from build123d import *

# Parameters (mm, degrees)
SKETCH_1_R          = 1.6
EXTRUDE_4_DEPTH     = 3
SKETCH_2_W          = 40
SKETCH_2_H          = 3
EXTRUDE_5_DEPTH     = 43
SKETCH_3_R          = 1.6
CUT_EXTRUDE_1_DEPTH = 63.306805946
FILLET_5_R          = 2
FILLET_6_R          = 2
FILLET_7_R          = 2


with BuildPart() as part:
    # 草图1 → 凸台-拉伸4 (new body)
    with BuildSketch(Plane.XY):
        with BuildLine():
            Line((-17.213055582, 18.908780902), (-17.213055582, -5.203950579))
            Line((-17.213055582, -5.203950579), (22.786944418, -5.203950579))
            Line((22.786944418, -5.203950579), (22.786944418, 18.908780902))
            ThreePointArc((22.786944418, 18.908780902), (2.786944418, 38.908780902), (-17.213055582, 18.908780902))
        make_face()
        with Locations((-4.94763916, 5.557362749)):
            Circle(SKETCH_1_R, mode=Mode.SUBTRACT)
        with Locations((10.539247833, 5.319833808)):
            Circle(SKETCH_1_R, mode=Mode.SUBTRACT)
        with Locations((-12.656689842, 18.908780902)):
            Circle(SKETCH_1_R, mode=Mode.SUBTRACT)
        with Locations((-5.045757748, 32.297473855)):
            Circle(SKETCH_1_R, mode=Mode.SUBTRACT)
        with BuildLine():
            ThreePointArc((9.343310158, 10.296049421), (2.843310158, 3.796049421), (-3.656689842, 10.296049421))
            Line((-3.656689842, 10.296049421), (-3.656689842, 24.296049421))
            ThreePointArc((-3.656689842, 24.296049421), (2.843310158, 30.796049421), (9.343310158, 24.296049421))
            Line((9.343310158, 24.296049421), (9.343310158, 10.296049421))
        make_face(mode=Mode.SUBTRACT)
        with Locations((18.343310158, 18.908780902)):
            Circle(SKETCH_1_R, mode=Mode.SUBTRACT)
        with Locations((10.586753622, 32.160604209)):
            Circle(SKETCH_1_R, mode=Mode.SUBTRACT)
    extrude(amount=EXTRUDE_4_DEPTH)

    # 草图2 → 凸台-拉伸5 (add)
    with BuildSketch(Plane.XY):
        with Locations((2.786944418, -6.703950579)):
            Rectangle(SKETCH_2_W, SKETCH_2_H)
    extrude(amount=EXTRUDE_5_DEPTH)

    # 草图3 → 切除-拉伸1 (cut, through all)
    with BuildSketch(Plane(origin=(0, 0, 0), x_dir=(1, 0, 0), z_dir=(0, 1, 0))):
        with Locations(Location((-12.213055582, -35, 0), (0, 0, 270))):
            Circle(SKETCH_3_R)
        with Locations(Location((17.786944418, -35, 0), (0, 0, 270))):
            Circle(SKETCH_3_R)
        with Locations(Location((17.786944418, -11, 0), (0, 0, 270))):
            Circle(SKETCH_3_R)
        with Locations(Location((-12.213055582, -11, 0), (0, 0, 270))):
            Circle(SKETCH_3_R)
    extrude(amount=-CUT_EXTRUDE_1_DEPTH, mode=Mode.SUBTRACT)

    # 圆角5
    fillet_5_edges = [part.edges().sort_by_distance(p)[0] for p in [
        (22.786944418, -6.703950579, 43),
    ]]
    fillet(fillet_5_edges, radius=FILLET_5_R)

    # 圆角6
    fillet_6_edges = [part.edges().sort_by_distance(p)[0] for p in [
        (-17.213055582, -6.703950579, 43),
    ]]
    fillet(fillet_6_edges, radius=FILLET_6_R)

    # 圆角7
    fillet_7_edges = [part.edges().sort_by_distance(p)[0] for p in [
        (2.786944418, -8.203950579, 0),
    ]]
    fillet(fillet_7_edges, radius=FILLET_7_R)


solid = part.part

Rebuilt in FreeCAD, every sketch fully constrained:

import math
import FreeCAD as App
import Part
import Sketcher
from FreeCAD import Vector
Q = App.Units.Quantity


def edges_at(feature, points):
    """Names of the edges that pass closest to the given points."""
    edges = feature.Shape.Edges
    near = lambda p: min(range(len(edges)), key=lambda i: edges[i].distToShape(Part.Vertex(*p))[0])
    return sorted({f"Edge{near(p) + 1}" for p in points})


def add_polygon(sketch, points):
    """Adds a closed chain of lines whose ends are joined by coincident constraints."""
    first, n = sketch.GeometryCount, len(points)
    for a, b in zip(points, points[1:] + points[:1]):
        sketch.addGeometry(Part.LineSegment(App.Vector(*a, 0), App.Vector(*b, 0)), False)
    for i in range(n):
        sketch.addConstraint(Sketcher.Constraint("Coincident", first + i, 2, first + (i + 1) % n, 1))

doc = App.newDocument("Part")
body = doc.addObject("PartDesign::Body", "Body")

# Sketch on XY plane
sketch1 = body.newObject("Sketcher::SketchObject", "Sketch")
sketch1.AttachmentSupport = (doc.getObject("XY_Plane"), [""])
sketch1.MapMode = "FlatFace"
sketch1.addGeometry([
    Part.LineSegment(Vector(-17.213056, 18.908781, 0), Vector(-17.213056, -5.203951, 0)),  # 0
    Part.LineSegment(Vector(-17.213056, -5.203951, 0), Vector(22.786944, -5.203951, 0)),  # 1
    Part.LineSegment(Vector(22.786944, -5.203951, 0), Vector(22.786944, 18.908781, 0)),  # 2
    Part.ArcOfCircle(Part.Circle(Vector(2.786944, 18.908781, 0), Vector(0, 0, 1), 20), math.radians(0), math.radians(180)),  # 3
    Part.Circle(Vector(-4.947639, 5.557363, 0), Vector(0, 0, 1), 1.6),  # 4
    Part.Circle(Vector(10.539248, 5.319834, 0), Vector(0, 0, 1), 1.6),  # 5
    Part.LineSegment(Vector(9.34331, 24.296049, 0), Vector(9.34331, 10.296049, 0)),  # 6
    Part.ArcOfCircle(Part.Circle(Vector(2.84331, 10.296049, 0), Vector(0, 0, 1), 6.5), math.radians(180), math.radians(360)),  # 7
    Part.LineSegment(Vector(-3.65669, 10.296049, 0), Vector(-3.65669, 24.296049, 0)),  # 8
    Part.ArcOfCircle(Part.Circle(Vector(2.84331, 24.296049, 0), Vector(0, 0, 1), 6.5), math.radians(0), math.radians(180)),  # 9
    Part.Circle(Vector(-12.65669, 18.908781, 0), Vector(0, 0, 1), 1.6),  # 10
    Part.Circle(Vector(-5.045758, 32.297474, 0), Vector(0, 0, 1), 1.6),  # 11
    Part.Circle(Vector(18.34331, 18.908781, 0), Vector(0, 0, 1), 1.6),  # 12
    Part.Circle(Vector(10.586754, 32.160604, 0), Vector(0, 0, 1), 1.6),  # 13
], False)
sketch1.addConstraint([
    Sketcher.Constraint("Coincident", 0, 2, 1, 1),
    Sketcher.Constraint("Coincident", 1, 2, 2, 1),
    Sketcher.Constraint("Tangent", 2, 2, 3, 1),
    Sketcher.Constraint("Tangent", 3, 2, 0, 1),
    Sketcher.Constraint("Tangent", 6, 2, 7, 2),
    Sketcher.Constraint("Tangent", 7, 1, 8, 1),
    Sketcher.Constraint("Tangent", 8, 2, 9, 2),
    Sketcher.Constraint("Tangent", 9, 1, 6, 1),
    Sketcher.Constraint("Vertical", 0),
    Sketcher.Constraint("Horizontal", 1),
    Sketcher.Constraint("Vertical", 2),
    Sketcher.Constraint("Vertical", 6),
    Sketcher.Constraint("Vertical", 8),
    Sketcher.Constraint("Equal", 4, 5),
    Sketcher.Constraint("Equal", 5, 10),
    Sketcher.Constraint("Equal", 10, 11),
    Sketcher.Constraint("Equal", 11, 12),
    Sketcher.Constraint("Equal", 12, 13),
    Sketcher.Constraint("Horizontal", 3, 3, 10, 3),
    Sketcher.Constraint("Horizontal", 10, 3, 12, 3),
    Sketcher.Constraint("Radius", 3, Q("20 mm")),
    Sketcher.Constraint("Diameter", 4, Q("3.2 mm")),
    Sketcher.Constraint("Radius", 7, Q("6.5 mm")),
    Sketcher.Constraint("DistanceY", 6, 2, 6, 1, Q("14 mm")),
    Sketcher.Constraint("DistanceX", 6, 2, 12, 3, Q("9 mm")),
    Sketcher.Constraint("DistanceX", 10, 3, 7, 1, Q("9 mm")),
    Sketcher.Constraint("DistanceY", 0, 2, 7, 3, Q("15.5 mm")),
    Sketcher.Constraint("DistanceY", 0, 2, 0, 1, Q("24.112731 mm")),
    Sketcher.Constraint("DistanceY", -1, 1, 3, 3, Q("18.908781 mm")),
    Sketcher.Constraint("DistanceX", 4, 3, -1, 1, Q("4.947639 mm")),
    Sketcher.Constraint("DistanceX", -1, 1, 7, 3, Q("2.84331 mm")),
    Sketcher.Constraint("DistanceY", 4, 3, 3, 3, Q("13.351418 mm")),
    Sketcher.Constraint("DistanceY", 5, 3, 4, 3, Q("0.237529 mm")),
    Sketcher.Constraint("DistanceX", 11, 3, 4, 3, Q("0.098119 mm")),
    Sketcher.Constraint("DistanceY", 4, 3, 11, 3, Q("26.740111 mm")),
    Sketcher.Constraint("DistanceX", 3, 3, 13, 3, Q("7.799809 mm")),
    Sketcher.Constraint("DistanceX", 11, 3, 13, 3, Q("15.632511 mm")),
    Sketcher.Constraint("DistanceY", 13, 3, 11, 3, Q("0.13687 mm")),
    Sketcher.Constraint("DistanceX", -1, 1, 5, 3, Q("10.539248 mm")),
])
pad1 = body.newObject("PartDesign::Pad", "Pad")
pad1.Profile = sketch1
pad1.Length = 3

# Sketch on XY plane
sketch2 = body.newObject("Sketcher::SketchObject", "Sketch001")
sketch2.AttachmentSupport = (doc.getObject("XY_Plane"), [""])
sketch2.MapMode = "FlatFace"
add_polygon(sketch2, [(-17.213056, -5.203951), (-17.213056, -8.203951), (22.786944, -8.203951), (22.786944, -5.203951)])  # lines 0-3
sketch2.addConstraint([
    Sketcher.Constraint("Vertical", 0),
    Sketcher.Constraint("Horizontal", 1),
    Sketcher.Constraint("Vertical", 2),
    Sketcher.Constraint("Horizontal", 3),
    Sketcher.Constraint("DistanceX", 1, 1, 1, 2, Q("40 mm")),
    Sketcher.Constraint("DistanceY", 0, 2, 0, 1, Q("3 mm")),
    Sketcher.Constraint("DistanceY", 0, 2, -1, 1, Q("8.203951 mm")),
    Sketcher.Constraint("DistanceX", 0, 2, -1, 1, Q("17.213056 mm")),
])
pad2 = body.newObject("PartDesign::Pad", "Pad001")
pad2.Profile = sketch2
pad2.Length = 43

# Sketch on XZ plane
sketch3 = body.newObject("Sketcher::SketchObject", "Sketch002")
sketch3.AttachmentSupport = (doc.getObject("XZ_Plane"), [""])
sketch3.MapMode = "FlatFace"
sketch3.addGeometry([
    Part.Circle(Vector(-12.213056, 35, 0), Vector(0, 0, 1), 1.6),
    Part.Circle(Vector(17.786944, 35, 0), Vector(0, 0, 1), 1.6),
    Part.Circle(Vector(17.786944, 11, 0), Vector(0, 0, 1), 1.6),
    Part.Circle(Vector(-12.213056, 11, 0), Vector(0, 0, 1), 1.6),
], False)
sketch3.addConstraint([
    Sketcher.Constraint("Equal", 0, 1),
    Sketcher.Constraint("Equal", 1, 2),
    Sketcher.Constraint("Equal", 2, 3),
    Sketcher.Constraint("Horizontal", 0, 3, 1, 3),
    Sketcher.Constraint("Horizontal", 2, 3, 3, 3),
    Sketcher.Constraint("Vertical", 1, 3, 2, 3),
    Sketcher.Constraint("Vertical", 0, 3, 3, 3),
    Sketcher.Constraint("Diameter", 0, Q("3.2 mm")),
    Sketcher.Constraint("DistanceY", -1, 1, 0, 3, Q("35 mm")),
    Sketcher.Constraint("DistanceY", -1, 1, 2, 3, Q("11 mm")),
    Sketcher.Constraint("DistanceX", 0, 3, 1, 3, Q("30 mm")),
    Sketcher.Constraint("DistanceX", 0, 3, -1, 1, Q("12.213056 mm")),
])
pocket1 = body.newObject("PartDesign::Pocket", "Pocket")
pocket1.Profile = sketch3
pocket1.Type = "ThroughAll"
pocket1.Reversed = True
doc.recompute()

fillet = body.newObject("PartDesign::Fillet", "Fillet")
fillet.Base = (pocket1, edges_at(pocket1, [(22.787, -6.704, 43)]))
fillet.Radius = 2
doc.recompute()

fillet2 = body.newObject("PartDesign::Fillet", "Fillet001")
fillet2.Base = (fillet, edges_at(fillet, [(-17.213, -6.704, 43)]))
fillet2.Radius = 2
doc.recompute()

fillet3 = body.newObject("PartDesign::Fillet", "Fillet002")
fillet3.Base = (fillet2, edges_at(fillet2, [(2.787, -8.204, 0)]))
fillet3.Radius = 2

doc.recompute()
